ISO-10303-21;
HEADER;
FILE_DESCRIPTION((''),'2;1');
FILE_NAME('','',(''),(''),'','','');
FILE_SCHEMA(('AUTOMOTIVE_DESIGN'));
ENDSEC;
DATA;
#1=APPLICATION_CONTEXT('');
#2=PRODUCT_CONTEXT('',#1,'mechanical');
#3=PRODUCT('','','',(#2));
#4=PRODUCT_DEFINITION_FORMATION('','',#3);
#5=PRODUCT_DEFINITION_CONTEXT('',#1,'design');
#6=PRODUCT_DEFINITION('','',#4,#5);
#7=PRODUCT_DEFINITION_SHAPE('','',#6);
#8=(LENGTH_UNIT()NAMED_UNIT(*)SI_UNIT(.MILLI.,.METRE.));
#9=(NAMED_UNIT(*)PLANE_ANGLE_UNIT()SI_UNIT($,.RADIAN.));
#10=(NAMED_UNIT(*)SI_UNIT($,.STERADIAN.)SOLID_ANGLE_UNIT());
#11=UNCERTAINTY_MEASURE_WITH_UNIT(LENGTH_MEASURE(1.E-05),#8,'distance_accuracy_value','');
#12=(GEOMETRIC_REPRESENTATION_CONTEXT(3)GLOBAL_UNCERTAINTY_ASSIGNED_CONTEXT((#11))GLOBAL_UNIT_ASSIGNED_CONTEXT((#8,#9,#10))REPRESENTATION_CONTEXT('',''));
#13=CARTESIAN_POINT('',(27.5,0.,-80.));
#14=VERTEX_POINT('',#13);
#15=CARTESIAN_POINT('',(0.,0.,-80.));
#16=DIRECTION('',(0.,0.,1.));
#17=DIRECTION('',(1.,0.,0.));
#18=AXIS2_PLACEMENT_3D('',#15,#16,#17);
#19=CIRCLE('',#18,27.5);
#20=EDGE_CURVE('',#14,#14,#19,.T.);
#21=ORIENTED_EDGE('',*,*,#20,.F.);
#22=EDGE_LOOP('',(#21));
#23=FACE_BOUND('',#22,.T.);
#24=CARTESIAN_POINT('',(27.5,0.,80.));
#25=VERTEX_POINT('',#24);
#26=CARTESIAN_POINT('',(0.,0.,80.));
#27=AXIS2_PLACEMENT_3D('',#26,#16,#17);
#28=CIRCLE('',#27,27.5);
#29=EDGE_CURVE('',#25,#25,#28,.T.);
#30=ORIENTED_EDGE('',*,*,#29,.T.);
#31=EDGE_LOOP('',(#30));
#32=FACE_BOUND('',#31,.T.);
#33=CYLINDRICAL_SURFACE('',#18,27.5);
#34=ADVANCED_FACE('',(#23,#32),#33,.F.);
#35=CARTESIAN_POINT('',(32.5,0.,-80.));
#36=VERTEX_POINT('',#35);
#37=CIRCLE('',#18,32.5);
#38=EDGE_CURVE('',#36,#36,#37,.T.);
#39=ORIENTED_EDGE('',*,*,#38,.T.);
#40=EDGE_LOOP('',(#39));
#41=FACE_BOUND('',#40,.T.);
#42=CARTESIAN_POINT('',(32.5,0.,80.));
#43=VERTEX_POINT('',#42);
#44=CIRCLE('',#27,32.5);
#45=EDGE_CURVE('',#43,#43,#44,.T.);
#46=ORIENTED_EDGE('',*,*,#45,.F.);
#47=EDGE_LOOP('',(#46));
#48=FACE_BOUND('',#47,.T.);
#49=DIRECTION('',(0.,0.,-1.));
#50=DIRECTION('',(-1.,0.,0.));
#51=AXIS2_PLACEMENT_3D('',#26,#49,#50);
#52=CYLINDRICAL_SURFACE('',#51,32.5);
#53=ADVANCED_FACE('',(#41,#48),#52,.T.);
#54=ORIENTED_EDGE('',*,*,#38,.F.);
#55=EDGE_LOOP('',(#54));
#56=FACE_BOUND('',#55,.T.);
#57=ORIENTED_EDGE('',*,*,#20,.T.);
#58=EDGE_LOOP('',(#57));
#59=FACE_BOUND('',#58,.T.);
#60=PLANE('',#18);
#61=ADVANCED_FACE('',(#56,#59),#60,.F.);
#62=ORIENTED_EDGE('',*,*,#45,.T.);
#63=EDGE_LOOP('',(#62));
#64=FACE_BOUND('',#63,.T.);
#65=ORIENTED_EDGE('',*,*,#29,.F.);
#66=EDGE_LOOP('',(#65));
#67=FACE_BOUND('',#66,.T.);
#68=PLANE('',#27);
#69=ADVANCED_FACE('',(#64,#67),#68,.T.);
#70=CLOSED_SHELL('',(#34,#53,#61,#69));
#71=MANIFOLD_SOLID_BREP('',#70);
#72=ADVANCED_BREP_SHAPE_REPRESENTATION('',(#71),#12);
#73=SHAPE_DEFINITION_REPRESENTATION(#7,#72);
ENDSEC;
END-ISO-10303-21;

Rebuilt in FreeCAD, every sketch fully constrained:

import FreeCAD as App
import Part
import Sketcher
Q = App.Units.Quantity

doc = App.newDocument("Part")
body = doc.addObject("PartDesign::Body", "Body")

# Sketch on XY plane
sketch1 = doc.addObject("Sketcher::SketchObject", "Sketch")
body.addObject(sketch1)
sketch1.AttachmentSupport = (doc.XY_Plane, [""])
sketch1.MapMode = "FlatFace"
sketch1.addGeometry(Part.Circle(App.Vector(0, 0, 0), App.Vector(0, 0, 1), 32), False)
sketch1.addConstraint([
    Sketcher.Constraint("Coincident", 0, 3, -1, 1),
    Sketcher.Constraint("Diameter", 0, Q("65 mm")),
])
pad1 = doc.addObject("PartDesign::Pad", "Pad")
body.addObject(pad1)
pad1.Profile = sketch1
pad1.Length = 160
pad1.Midplane = True

# Sketch on XY plane
sketch2 = doc.addObject("Sketcher::SketchObject", "Sketch001")
body.addObject(sketch2)
sketch2.AttachmentSupport = (doc.XY_Plane, [""])
sketch2.MapMode = "FlatFace"
sketch2.AttachmentOffset = App.Placement(App.Vector(0, 0, 80), App.Rotation())
sketch2.addGeometry(Part.Circle(App.Vector(0, 0, 0), App.Vector(0, 0, 1), 28), False)
sketch2.addConstraint([
    Sketcher.Constraint("Coincident", 0, 3, -1, 1),
    Sketcher.Constraint("Diameter", 0, Q("55 mm")),
])
pocket1 = doc.addObject("PartDesign::Pocket", "Pocket")
body.addObject(pocket1)
pocket1.Profile = sketch2
pocket1.Type = "ThroughAll"

doc.recompute()
